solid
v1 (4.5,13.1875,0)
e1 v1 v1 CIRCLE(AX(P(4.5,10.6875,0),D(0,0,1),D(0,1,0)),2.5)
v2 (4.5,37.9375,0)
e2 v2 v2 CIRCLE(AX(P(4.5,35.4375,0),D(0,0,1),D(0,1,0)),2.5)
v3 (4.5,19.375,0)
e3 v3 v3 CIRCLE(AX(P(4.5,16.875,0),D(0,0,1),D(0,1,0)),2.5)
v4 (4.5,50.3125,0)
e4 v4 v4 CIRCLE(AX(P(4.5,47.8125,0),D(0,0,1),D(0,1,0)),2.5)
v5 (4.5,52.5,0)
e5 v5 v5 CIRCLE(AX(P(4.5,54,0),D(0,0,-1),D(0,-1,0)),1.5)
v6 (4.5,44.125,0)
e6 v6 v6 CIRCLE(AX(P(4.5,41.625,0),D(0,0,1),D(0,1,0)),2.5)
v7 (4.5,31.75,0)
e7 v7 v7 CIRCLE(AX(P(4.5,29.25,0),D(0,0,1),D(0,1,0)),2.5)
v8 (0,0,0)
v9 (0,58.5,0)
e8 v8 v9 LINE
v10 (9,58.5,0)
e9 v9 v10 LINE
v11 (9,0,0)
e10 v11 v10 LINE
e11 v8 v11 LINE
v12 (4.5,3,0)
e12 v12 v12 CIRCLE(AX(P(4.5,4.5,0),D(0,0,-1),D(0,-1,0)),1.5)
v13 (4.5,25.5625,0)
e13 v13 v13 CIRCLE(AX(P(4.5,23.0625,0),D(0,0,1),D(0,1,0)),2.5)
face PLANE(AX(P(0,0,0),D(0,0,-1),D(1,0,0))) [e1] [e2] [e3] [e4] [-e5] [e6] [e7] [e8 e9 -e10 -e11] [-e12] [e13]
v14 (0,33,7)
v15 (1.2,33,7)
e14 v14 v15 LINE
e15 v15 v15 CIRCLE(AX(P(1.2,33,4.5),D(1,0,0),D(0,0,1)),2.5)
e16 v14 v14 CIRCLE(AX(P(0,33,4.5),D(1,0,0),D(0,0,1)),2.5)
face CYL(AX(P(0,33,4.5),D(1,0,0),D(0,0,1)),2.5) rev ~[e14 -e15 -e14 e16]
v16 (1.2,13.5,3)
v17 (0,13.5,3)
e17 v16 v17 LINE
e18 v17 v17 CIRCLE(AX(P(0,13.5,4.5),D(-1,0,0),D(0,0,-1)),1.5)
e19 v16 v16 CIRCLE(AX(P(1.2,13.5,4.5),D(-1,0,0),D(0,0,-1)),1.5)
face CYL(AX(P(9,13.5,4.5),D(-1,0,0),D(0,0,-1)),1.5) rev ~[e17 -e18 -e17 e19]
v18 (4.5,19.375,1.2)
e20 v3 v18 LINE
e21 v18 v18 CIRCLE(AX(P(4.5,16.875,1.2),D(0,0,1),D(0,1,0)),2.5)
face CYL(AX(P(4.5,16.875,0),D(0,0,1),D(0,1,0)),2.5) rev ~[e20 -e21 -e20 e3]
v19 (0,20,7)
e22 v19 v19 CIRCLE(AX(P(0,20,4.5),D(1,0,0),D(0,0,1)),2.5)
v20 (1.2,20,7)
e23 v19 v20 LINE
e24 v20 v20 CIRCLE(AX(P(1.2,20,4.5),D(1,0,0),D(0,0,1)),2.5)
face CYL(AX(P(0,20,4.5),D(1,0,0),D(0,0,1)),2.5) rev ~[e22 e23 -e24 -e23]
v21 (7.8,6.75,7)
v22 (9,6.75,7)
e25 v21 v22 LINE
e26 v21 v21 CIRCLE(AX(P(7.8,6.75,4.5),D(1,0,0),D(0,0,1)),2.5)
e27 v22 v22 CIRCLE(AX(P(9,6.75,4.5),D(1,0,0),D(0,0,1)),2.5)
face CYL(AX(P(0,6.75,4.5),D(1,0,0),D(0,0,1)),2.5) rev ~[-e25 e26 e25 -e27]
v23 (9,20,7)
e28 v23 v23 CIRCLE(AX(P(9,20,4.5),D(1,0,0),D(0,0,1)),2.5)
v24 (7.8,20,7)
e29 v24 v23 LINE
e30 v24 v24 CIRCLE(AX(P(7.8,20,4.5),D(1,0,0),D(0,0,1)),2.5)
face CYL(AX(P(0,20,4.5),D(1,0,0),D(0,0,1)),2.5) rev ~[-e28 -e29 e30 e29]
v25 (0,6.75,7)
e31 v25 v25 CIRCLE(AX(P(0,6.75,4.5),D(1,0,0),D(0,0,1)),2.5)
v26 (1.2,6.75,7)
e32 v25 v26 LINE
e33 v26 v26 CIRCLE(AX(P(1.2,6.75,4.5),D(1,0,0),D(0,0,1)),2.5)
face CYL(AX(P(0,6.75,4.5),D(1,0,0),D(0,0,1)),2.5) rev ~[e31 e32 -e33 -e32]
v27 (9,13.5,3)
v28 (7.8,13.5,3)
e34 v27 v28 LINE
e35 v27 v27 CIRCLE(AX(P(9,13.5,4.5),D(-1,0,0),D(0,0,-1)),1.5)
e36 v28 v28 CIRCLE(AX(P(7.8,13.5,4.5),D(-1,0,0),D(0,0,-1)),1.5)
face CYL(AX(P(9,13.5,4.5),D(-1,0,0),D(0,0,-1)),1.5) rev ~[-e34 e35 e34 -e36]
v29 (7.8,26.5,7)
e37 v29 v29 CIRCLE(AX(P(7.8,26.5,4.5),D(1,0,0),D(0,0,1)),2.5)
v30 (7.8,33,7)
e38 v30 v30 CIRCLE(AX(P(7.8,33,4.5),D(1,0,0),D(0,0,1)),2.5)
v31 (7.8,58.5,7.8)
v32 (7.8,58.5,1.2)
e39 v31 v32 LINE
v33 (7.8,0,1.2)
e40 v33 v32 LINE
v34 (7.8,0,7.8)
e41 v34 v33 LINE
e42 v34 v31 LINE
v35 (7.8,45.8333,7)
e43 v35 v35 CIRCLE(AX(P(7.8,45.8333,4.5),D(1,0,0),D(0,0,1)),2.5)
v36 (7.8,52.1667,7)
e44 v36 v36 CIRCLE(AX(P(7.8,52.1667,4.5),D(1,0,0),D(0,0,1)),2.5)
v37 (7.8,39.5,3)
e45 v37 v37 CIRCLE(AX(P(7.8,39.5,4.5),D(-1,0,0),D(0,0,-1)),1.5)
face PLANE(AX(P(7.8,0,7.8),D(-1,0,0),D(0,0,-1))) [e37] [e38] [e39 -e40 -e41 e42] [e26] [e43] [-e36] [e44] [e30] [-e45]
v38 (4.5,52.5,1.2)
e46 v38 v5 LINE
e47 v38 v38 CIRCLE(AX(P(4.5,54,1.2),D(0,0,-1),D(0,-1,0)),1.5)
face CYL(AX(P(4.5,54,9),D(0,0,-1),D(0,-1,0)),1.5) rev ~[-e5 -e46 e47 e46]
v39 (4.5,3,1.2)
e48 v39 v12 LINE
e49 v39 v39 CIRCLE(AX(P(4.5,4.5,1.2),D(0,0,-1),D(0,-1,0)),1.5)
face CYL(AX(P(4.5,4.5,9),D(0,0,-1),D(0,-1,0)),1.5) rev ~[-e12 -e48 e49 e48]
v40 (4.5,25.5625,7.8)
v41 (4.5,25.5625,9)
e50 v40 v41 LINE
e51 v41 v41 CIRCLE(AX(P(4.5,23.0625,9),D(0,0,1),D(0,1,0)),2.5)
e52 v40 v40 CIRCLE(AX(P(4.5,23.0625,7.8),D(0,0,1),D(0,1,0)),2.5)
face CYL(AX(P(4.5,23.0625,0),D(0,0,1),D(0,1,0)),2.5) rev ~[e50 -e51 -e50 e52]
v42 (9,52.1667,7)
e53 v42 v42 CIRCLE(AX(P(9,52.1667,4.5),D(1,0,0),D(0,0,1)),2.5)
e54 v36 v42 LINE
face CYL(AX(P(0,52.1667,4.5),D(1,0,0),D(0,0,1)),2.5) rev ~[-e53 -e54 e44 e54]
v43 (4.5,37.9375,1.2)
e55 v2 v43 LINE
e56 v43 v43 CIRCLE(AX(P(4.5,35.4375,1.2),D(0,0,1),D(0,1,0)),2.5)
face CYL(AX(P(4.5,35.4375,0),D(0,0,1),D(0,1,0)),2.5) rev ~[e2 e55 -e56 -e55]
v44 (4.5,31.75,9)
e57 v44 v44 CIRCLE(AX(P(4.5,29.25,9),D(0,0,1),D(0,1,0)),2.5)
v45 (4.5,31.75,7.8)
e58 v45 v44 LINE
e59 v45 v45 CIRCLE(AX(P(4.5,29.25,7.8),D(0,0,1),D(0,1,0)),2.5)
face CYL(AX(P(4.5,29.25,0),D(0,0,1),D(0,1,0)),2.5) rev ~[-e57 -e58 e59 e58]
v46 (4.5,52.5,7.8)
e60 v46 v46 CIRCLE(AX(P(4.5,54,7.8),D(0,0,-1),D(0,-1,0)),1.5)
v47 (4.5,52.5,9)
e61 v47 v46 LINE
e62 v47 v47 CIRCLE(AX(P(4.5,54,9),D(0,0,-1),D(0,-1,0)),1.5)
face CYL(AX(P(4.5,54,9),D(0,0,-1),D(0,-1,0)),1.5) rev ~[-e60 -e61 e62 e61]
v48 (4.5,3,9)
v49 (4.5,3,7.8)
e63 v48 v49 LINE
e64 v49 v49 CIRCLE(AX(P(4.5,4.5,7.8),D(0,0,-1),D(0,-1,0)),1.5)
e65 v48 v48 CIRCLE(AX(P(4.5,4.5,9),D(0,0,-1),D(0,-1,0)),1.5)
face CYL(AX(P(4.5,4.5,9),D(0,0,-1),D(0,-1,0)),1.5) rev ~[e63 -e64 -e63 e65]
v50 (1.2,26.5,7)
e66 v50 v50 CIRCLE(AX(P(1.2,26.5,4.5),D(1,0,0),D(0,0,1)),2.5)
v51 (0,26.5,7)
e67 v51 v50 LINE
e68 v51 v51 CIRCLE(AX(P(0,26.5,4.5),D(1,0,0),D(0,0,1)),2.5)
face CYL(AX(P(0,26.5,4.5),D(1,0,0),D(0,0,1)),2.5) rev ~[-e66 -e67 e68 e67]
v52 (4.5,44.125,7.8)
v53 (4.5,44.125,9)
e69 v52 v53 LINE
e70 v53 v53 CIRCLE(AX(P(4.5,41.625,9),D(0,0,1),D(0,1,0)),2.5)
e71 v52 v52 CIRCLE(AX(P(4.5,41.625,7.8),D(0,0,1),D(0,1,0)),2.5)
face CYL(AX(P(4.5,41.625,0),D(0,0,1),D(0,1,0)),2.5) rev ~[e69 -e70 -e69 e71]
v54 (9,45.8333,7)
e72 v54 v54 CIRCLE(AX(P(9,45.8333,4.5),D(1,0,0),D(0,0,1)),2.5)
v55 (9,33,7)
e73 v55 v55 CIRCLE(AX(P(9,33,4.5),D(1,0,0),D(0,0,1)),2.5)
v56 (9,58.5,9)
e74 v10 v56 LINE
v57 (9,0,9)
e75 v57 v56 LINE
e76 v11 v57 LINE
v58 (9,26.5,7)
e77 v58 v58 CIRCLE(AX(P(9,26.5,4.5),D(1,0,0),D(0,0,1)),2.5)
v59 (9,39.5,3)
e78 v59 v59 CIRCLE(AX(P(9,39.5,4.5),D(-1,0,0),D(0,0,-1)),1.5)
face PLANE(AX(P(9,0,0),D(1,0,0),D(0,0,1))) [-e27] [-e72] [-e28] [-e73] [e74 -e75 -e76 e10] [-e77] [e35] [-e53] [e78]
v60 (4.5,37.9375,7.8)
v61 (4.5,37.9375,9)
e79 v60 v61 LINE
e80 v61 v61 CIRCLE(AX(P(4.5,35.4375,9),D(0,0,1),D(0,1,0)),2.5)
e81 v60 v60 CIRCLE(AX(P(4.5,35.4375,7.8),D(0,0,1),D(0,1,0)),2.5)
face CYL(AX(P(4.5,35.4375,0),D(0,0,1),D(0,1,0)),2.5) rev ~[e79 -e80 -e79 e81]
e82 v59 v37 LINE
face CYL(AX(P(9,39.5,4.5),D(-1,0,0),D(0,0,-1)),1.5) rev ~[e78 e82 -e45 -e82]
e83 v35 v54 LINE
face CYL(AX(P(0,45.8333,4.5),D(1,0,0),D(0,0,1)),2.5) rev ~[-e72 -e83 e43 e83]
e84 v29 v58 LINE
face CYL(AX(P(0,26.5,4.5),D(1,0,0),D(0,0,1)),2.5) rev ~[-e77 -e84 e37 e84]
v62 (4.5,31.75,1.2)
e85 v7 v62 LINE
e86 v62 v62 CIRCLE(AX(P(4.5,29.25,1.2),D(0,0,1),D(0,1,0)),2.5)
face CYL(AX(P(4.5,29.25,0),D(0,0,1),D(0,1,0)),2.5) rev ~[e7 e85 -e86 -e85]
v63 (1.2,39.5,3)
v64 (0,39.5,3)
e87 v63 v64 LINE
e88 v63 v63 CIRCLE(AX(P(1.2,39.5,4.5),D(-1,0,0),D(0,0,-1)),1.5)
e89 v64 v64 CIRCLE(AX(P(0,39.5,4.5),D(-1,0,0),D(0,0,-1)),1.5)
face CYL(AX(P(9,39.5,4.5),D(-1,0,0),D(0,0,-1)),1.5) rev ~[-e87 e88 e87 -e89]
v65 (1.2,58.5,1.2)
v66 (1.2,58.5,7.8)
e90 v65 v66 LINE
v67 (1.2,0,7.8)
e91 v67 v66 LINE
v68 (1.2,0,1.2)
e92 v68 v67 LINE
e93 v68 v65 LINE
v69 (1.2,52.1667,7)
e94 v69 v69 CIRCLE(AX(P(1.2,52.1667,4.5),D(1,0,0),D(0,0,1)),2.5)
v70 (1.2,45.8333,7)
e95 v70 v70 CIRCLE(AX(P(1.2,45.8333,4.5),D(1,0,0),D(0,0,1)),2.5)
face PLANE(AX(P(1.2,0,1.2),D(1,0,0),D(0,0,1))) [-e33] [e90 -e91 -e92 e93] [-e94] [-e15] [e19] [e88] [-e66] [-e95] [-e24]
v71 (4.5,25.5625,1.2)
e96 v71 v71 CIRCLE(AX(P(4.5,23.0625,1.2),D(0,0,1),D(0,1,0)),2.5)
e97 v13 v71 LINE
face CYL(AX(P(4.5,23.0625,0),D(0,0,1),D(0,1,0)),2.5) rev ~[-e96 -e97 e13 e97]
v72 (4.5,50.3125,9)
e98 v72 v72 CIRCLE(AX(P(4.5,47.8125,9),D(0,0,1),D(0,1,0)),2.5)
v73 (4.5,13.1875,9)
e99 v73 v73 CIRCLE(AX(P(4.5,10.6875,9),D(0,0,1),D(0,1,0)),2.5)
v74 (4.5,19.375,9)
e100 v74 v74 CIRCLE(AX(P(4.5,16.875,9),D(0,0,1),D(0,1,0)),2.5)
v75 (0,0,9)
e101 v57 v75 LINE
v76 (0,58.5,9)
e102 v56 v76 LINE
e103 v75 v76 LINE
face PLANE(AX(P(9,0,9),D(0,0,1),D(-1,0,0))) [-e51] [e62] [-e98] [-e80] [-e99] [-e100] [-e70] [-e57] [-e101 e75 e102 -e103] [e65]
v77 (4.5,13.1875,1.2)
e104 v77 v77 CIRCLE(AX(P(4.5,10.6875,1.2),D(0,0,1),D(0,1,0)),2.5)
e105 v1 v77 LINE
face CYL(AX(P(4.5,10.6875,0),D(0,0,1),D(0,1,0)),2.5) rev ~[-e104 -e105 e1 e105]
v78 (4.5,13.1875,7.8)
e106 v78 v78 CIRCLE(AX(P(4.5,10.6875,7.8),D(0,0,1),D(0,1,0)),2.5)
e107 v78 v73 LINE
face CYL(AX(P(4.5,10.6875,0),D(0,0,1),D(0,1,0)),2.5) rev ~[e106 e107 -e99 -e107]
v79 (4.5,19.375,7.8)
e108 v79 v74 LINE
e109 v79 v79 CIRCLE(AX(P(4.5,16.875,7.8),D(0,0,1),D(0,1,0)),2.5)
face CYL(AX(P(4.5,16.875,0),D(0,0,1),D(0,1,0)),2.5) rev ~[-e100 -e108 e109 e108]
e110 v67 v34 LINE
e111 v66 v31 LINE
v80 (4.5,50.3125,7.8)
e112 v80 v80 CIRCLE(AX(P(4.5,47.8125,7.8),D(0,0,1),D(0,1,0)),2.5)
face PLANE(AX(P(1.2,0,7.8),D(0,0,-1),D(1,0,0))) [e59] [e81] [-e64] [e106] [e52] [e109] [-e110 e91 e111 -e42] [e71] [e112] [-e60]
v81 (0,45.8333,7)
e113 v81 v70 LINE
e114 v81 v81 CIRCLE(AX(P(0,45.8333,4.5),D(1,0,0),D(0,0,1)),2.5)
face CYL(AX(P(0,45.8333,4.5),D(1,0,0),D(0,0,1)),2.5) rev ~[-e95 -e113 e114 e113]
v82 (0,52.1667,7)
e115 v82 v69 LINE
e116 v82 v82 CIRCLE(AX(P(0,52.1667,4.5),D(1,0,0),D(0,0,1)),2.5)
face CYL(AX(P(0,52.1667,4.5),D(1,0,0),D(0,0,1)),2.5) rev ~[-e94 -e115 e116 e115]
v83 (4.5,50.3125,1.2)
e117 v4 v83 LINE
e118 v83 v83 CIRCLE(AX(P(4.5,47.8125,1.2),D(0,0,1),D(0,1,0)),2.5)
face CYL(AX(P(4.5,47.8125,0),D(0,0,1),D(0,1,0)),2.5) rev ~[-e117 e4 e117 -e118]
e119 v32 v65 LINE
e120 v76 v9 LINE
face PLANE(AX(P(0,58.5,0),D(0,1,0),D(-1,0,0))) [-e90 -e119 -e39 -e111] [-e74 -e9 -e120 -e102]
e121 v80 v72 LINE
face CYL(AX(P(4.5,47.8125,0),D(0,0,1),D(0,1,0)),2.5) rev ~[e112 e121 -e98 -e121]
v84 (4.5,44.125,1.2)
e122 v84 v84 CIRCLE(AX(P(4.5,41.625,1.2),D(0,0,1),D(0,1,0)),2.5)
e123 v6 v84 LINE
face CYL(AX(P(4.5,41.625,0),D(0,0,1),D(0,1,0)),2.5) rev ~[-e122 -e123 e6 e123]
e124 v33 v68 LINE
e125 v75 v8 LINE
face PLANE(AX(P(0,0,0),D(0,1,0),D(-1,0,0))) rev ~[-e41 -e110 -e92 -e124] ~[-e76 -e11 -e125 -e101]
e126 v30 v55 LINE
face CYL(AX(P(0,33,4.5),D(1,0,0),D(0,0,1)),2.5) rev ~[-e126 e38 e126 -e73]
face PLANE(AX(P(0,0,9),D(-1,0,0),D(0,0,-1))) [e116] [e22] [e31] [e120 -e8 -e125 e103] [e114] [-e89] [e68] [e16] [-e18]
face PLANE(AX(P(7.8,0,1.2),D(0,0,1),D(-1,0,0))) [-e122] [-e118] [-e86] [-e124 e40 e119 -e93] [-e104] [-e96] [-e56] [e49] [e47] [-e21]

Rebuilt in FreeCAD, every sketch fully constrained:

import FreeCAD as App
import Part
import Sketcher
Q = App.Units.Quantity

doc = App.newDocument("Part")
body = doc.addObject("PartDesign::Body", "Body")

sketch1 = body.newObject("Sketcher::SketchObject", "Sketch")
sketch1.AttachmentSupport = (doc.getObject("XZ_Plane"), [""])
sketch1.MapMode = "FlatFace"
sketch1.addGeometry([
    Part.LineSegment(App.Vector(9, 0, 0), App.Vector(0, 0, 0)),
    Part.LineSegment(App.Vector(0, 0, 0), App.Vector(0, 9, 0)),
    Part.LineSegment(App.Vector(0, 9, 0), App.Vector(9, 9, 0)),
    Part.LineSegment(App.Vector(9, 9, 0), App.Vector(9, 0, 0)),
    Part.LineSegment(App.Vector(7.8, 7.8, 0), App.Vector(1.2, 7.8, 0)),
    Part.LineSegment(App.Vector(1.2, 7.8, 0), App.Vector(1.2, 1.2, 0)),
    Part.LineSegment(App.Vector(1.2, 1.2, 0), App.Vector(7.8, 1.2, 0)),
    Part.LineSegment(App.Vector(7.8, 1.2, 0), App.Vector(7.8, 7.8, 0)),
], False)
sketch1.addConstraint([
    Sketcher.Constraint("Coincident", 0, 2, 1, 1),
    Sketcher.Constraint("Coincident", 1, 2, 2, 1),
    Sketcher.Constraint("Coincident", 2, 2, 3, 1),
    Sketcher.Constraint("Coincident", 3, 2, 0, 1),
    Sketcher.Constraint("Coincident", 4, 2, 5, 1),
    Sketcher.Constraint("Coincident", 5, 2, 6, 1),
    Sketcher.Constraint("Coincident", 6, 2, 7, 1),
    Sketcher.Constraint("Coincident", 7, 2, 4, 1),
    Sketcher.Constraint("Horizontal", 0),
    Sketcher.Constraint("Vertical", 1),
    Sketcher.Constraint("Horizontal", 2),
    Sketcher.Constraint("Vertical", 3),
    Sketcher.Constraint("Horizontal", 4),
    Sketcher.Constraint("Vertical", 5),
    Sketcher.Constraint("Horizontal", 6),
    Sketcher.Constraint("Vertical", 7),
    Sketcher.Constraint("Coincident", 0, 2, -1, 1),
    Sketcher.Constraint("Equal", 2, 1),
    Sketcher.Constraint("Equal", 6, 5),
    Sketcher.Constraint("DistanceX", 0, 2, 0, 1, Q("9 mm")),
    Sketcher.Constraint("DistanceX", 4, 2, 4, 1, Q("6.6 mm")),
    Sketcher.Constraint("DistanceX", -1, 1, 4, 2, Q("1.2 mm")),
    Sketcher.Constraint("DistanceY", -1, 1, 5, 2, Q("1.2 mm")),
])
pad1 = body.newObject("PartDesign::Pad", "Pad")
pad1.Profile = sketch1
pad1.Length = 58.5
pad1.Reversed = True

sketch2 = body.newObject("Sketcher::SketchObject", "Sketch001")
sketch2.AttachmentSupport = (doc.getObject("XY_Plane"), [""])
sketch2.MapMode = "FlatFace"
sketch2.AttachmentOffset = App.Placement(App.Vector(0, 0, 9), App.Rotation())
sketch2.addGeometry([
    Part.Circle(App.Vector(4.5, 4.5, 0), App.Vector(0, 0, 1), 1.5),
    Part.Circle(App.Vector(4.5, 54, 0), App.Vector(0, 0, 1), 1.5),
], False)
sketch2.addConstraint([
    Sketcher.Constraint("Equal", 0, 1),
    Sketcher.Constraint("Vertical", 0, 3, 1, 3),
    Sketcher.Constraint("Diameter", 0, Q("3 mm")),
    Sketcher.Constraint("DistanceY", -1, 1, 1, 3, Q("54 mm")),
    Sketcher.Constraint("DistanceX", -1, 1, 0, 3, Q("4.5 mm")),
    Sketcher.Constraint("DistanceY", -1, 1, 0, 3, Q("4.5 mm")),
])
doc.recompute()
hole = body.newObject("PartDesign::Hole", "Hole")
hole.Profile = sketch2
hole.ThreadType = "None"
hole.Diameter = 3
hole.DepthType = "ThroughAll"

sketch3 = body.newObject("Sketcher::SketchObject", "Sketch002")
sketch3.AttachmentSupport = (doc.getObject("YZ_Plane"), [""])
sketch3.MapMode = "FlatFace"
sketch3.AttachmentOffset = App.Placement(App.Vector(0, 0, 9), App.Rotation())
sketch3.addGeometry([
    Part.Circle(App.Vector(13.5, 4.5, 0), App.Vector(0, 0, 1), 1.5),
    Part.Circle(App.Vector(39.5, 4.5, 0), App.Vector(0, 0, 1), 1.5),
], False)
sketch3.addConstraint([
    Sketcher.Constraint("Equal", 0, 1),
    Sketcher.Constraint("Horizontal", 0, 3, 1, 3),
    Sketcher.Constraint("Diameter", 0, Q("3 mm")),
    Sketcher.Constraint("DistanceX", 0, 3, 1, 3, Q("26 mm")),
    Sketcher.Constraint("DistanceX", -1, 1, 0, 3, Q("13.5 mm")),
    Sketcher.Constraint("DistanceY", -1, 1, 0, 3, Q("4.5 mm")),
])
doc.recompute()
hole2 = body.newObject("PartDesign::Hole", "Hole001")
hole2.Profile = sketch3
hole2.ThreadType = "None"
hole2.Diameter = 3
hole2.DepthType = "ThroughAll"

sketch4 = body.newObject("Sketcher::SketchObject", "Sketch003")
sketch4.AttachmentSupport = (doc.getObject("YZ_Plane"), [""])
sketch4.MapMode = "FlatFace"
sketch4.addGeometry([
    Part.Circle(App.Vector(6.75, 4.5, 0), App.Vector(0, 0, 1), 2.5),
    Part.Circle(App.Vector(20, 4.5, 0), App.Vector(0, 0, 1), 2.5),
    Part.Circle(App.Vector(33, 4.5, 0), App.Vector(0, 0, 1), 2.5),
    Part.Circle(App.Vector(45.8333, 4.5, 0), App.Vector(0, 0, 1), 2.5),
    Part.Circle(App.Vector(52.1667, 4.5, 0), App.Vector(0, 0, 1), 2.5),
    Part.Circle(App.Vector(26.5, 4.5, 0), App.Vector(0, 0, 1), 2.5),
], False)
sketch4.addConstraint([
    Sketcher.Constraint("Equal", 0, 1),
    Sketcher.Constraint("Equal", 1, 2),
    Sketcher.Constraint("Equal", 2, 3),
    Sketcher.Constraint("Equal", 3, 4),
    Sketcher.Constraint("Equal", 4, 5),
    Sketcher.Constraint("Horizontal", 0, 3, 1, 3),
    Sketcher.Constraint("Horizontal", 1, 3, 2, 3),
    Sketcher.Constraint("Horizontal", 2, 3, 3, 3),
    Sketcher.Constraint("Horizontal", 3, 3, 4, 3),
    Sketcher.Constraint("Horizontal", 4, 3, 5, 3),
    Sketcher.Constraint("Diameter", 0, Q("5 mm")),
    Sketcher.Constraint("DistanceX", -1, 1, 1, 3, Q("20 mm")),
    Sketcher.Constraint("DistanceX", -1, 1, 2, 3, Q("33 mm")),
    Sketcher.Constraint("DistanceY", -1, 1, 0, 3, Q("4.5 mm")),
    Sketcher.Constraint("DistanceX", -1, 1, 5, 3, Q("26.5 mm")),
    Sketcher.Constraint("DistanceX", -1, 1, 0, 3, Q("6.75 mm")),
    Sketcher.Constraint("DistanceX", -1, 1, 3, 3, Q("45.8333 mm")),
    Sketcher.Constraint("DistanceX", -1, 1, 4, 3, Q("52.1667 mm")),
])
doc.recompute()
hole3 = body.newObject("PartDesign::Hole", "Hole002")
hole3.Profile = sketch4
hole3.ThreadType = "None"
hole3.Diameter = 5
hole3.DepthType = "ThroughAll"
hole3.Reversed = True

sketch5 = body.newObject("Sketcher::SketchObject", "Sketch004")
sketch5.AttachmentSupport = (doc.getObject("XY_Plane"), [""])
sketch5.MapMode = "FlatFace"
sketch5.addGeometry([
    Part.Circle(App.Vector(4.5, 10.6875, 0), App.Vector(0, 0, 1), 2.5),
    Part.Circle(App.Vector(4.5, 16.875, 0), App.Vector(0, 0, 1), 2.5),
    Part.Circle(App.Vector(4.5, 23.0625, 0), App.Vector(0, 0, 1), 2.5),
    Part.Circle(App.Vector(4.5, 29.25, 0), App.Vector(0, 0, 1), 2.5),
    Part.Circle(App.Vector(4.5, 35.4375, 0), App.Vector(0, 0, 1), 2.5),
    Part.Circle(App.Vector(4.5, 41.625, 0), App.Vector(0, 0, 1), 2.5),
    Part.Circle(App.Vector(4.5, 47.8125, 0), App.Vector(0, 0, 1), 2.5),
], False)
sketch5.addConstraint([
    Sketcher.Constraint("Equal", 0, 1),
    Sketcher.Constraint("Equal", 1, 2),
    Sketcher.Constraint("Equal", 2, 3),
    Sketcher.Constraint("Equal", 3, 4),
    Sketcher.Constraint("Equal", 4, 5),
    Sketcher.Constraint("Equal", 5, 6),
    Sketcher.Constraint("Vertical", 0, 3, 1, 3),
    Sketcher.Constraint("Vertical", 1, 3, 2, 3),
    Sketcher.Constraint("Vertical", 2, 3, 3, 3),
    Sketcher.Constraint("Vertical", 3, 3, 4, 3),
    Sketcher.Constraint("Vertical", 4, 3, 5, 3),
    Sketcher.Constraint("Vertical", 5, 3, 6, 3),
    Sketcher.Constraint("Diameter", 0, Q("5 mm")),
    Sketcher.Constraint("DistanceX", -1, 1, 0, 3, Q("4.5 mm")),
    Sketcher.Constraint("DistanceY", -1, 1, 3, 3, Q("29.25 mm")),
    Sketcher.Constraint("DistanceY", 0, 3, 4, 3, Q("24.75 mm")),
    Sketcher.Constraint("DistanceY", 1, 3, 5, 3, Q("24.75 mm")),
    Sketcher.Constraint("DistanceY", 2, 3, 6, 3, Q("24.75 mm")),
    Sketcher.Constraint("DistanceY", -1, 1, 1, 3, Q("16.875 mm")),
    Sketcher.Constraint("DistanceY", 0, 3, 2, 3, Q("12.375 mm")),
    Sketcher.Constraint("DistanceY", -1, 1, 0, 3, Q("10.6875 mm")),
])
doc.recompute()
hole4 = body.newObject("PartDesign::Hole", "Hole003")
hole4.Profile = sketch5
hole4.ThreadType = "None"
hole4.Diameter = 5
hole4.DepthType = "ThroughAll"
hole4.Reversed = True

doc.recompute()
